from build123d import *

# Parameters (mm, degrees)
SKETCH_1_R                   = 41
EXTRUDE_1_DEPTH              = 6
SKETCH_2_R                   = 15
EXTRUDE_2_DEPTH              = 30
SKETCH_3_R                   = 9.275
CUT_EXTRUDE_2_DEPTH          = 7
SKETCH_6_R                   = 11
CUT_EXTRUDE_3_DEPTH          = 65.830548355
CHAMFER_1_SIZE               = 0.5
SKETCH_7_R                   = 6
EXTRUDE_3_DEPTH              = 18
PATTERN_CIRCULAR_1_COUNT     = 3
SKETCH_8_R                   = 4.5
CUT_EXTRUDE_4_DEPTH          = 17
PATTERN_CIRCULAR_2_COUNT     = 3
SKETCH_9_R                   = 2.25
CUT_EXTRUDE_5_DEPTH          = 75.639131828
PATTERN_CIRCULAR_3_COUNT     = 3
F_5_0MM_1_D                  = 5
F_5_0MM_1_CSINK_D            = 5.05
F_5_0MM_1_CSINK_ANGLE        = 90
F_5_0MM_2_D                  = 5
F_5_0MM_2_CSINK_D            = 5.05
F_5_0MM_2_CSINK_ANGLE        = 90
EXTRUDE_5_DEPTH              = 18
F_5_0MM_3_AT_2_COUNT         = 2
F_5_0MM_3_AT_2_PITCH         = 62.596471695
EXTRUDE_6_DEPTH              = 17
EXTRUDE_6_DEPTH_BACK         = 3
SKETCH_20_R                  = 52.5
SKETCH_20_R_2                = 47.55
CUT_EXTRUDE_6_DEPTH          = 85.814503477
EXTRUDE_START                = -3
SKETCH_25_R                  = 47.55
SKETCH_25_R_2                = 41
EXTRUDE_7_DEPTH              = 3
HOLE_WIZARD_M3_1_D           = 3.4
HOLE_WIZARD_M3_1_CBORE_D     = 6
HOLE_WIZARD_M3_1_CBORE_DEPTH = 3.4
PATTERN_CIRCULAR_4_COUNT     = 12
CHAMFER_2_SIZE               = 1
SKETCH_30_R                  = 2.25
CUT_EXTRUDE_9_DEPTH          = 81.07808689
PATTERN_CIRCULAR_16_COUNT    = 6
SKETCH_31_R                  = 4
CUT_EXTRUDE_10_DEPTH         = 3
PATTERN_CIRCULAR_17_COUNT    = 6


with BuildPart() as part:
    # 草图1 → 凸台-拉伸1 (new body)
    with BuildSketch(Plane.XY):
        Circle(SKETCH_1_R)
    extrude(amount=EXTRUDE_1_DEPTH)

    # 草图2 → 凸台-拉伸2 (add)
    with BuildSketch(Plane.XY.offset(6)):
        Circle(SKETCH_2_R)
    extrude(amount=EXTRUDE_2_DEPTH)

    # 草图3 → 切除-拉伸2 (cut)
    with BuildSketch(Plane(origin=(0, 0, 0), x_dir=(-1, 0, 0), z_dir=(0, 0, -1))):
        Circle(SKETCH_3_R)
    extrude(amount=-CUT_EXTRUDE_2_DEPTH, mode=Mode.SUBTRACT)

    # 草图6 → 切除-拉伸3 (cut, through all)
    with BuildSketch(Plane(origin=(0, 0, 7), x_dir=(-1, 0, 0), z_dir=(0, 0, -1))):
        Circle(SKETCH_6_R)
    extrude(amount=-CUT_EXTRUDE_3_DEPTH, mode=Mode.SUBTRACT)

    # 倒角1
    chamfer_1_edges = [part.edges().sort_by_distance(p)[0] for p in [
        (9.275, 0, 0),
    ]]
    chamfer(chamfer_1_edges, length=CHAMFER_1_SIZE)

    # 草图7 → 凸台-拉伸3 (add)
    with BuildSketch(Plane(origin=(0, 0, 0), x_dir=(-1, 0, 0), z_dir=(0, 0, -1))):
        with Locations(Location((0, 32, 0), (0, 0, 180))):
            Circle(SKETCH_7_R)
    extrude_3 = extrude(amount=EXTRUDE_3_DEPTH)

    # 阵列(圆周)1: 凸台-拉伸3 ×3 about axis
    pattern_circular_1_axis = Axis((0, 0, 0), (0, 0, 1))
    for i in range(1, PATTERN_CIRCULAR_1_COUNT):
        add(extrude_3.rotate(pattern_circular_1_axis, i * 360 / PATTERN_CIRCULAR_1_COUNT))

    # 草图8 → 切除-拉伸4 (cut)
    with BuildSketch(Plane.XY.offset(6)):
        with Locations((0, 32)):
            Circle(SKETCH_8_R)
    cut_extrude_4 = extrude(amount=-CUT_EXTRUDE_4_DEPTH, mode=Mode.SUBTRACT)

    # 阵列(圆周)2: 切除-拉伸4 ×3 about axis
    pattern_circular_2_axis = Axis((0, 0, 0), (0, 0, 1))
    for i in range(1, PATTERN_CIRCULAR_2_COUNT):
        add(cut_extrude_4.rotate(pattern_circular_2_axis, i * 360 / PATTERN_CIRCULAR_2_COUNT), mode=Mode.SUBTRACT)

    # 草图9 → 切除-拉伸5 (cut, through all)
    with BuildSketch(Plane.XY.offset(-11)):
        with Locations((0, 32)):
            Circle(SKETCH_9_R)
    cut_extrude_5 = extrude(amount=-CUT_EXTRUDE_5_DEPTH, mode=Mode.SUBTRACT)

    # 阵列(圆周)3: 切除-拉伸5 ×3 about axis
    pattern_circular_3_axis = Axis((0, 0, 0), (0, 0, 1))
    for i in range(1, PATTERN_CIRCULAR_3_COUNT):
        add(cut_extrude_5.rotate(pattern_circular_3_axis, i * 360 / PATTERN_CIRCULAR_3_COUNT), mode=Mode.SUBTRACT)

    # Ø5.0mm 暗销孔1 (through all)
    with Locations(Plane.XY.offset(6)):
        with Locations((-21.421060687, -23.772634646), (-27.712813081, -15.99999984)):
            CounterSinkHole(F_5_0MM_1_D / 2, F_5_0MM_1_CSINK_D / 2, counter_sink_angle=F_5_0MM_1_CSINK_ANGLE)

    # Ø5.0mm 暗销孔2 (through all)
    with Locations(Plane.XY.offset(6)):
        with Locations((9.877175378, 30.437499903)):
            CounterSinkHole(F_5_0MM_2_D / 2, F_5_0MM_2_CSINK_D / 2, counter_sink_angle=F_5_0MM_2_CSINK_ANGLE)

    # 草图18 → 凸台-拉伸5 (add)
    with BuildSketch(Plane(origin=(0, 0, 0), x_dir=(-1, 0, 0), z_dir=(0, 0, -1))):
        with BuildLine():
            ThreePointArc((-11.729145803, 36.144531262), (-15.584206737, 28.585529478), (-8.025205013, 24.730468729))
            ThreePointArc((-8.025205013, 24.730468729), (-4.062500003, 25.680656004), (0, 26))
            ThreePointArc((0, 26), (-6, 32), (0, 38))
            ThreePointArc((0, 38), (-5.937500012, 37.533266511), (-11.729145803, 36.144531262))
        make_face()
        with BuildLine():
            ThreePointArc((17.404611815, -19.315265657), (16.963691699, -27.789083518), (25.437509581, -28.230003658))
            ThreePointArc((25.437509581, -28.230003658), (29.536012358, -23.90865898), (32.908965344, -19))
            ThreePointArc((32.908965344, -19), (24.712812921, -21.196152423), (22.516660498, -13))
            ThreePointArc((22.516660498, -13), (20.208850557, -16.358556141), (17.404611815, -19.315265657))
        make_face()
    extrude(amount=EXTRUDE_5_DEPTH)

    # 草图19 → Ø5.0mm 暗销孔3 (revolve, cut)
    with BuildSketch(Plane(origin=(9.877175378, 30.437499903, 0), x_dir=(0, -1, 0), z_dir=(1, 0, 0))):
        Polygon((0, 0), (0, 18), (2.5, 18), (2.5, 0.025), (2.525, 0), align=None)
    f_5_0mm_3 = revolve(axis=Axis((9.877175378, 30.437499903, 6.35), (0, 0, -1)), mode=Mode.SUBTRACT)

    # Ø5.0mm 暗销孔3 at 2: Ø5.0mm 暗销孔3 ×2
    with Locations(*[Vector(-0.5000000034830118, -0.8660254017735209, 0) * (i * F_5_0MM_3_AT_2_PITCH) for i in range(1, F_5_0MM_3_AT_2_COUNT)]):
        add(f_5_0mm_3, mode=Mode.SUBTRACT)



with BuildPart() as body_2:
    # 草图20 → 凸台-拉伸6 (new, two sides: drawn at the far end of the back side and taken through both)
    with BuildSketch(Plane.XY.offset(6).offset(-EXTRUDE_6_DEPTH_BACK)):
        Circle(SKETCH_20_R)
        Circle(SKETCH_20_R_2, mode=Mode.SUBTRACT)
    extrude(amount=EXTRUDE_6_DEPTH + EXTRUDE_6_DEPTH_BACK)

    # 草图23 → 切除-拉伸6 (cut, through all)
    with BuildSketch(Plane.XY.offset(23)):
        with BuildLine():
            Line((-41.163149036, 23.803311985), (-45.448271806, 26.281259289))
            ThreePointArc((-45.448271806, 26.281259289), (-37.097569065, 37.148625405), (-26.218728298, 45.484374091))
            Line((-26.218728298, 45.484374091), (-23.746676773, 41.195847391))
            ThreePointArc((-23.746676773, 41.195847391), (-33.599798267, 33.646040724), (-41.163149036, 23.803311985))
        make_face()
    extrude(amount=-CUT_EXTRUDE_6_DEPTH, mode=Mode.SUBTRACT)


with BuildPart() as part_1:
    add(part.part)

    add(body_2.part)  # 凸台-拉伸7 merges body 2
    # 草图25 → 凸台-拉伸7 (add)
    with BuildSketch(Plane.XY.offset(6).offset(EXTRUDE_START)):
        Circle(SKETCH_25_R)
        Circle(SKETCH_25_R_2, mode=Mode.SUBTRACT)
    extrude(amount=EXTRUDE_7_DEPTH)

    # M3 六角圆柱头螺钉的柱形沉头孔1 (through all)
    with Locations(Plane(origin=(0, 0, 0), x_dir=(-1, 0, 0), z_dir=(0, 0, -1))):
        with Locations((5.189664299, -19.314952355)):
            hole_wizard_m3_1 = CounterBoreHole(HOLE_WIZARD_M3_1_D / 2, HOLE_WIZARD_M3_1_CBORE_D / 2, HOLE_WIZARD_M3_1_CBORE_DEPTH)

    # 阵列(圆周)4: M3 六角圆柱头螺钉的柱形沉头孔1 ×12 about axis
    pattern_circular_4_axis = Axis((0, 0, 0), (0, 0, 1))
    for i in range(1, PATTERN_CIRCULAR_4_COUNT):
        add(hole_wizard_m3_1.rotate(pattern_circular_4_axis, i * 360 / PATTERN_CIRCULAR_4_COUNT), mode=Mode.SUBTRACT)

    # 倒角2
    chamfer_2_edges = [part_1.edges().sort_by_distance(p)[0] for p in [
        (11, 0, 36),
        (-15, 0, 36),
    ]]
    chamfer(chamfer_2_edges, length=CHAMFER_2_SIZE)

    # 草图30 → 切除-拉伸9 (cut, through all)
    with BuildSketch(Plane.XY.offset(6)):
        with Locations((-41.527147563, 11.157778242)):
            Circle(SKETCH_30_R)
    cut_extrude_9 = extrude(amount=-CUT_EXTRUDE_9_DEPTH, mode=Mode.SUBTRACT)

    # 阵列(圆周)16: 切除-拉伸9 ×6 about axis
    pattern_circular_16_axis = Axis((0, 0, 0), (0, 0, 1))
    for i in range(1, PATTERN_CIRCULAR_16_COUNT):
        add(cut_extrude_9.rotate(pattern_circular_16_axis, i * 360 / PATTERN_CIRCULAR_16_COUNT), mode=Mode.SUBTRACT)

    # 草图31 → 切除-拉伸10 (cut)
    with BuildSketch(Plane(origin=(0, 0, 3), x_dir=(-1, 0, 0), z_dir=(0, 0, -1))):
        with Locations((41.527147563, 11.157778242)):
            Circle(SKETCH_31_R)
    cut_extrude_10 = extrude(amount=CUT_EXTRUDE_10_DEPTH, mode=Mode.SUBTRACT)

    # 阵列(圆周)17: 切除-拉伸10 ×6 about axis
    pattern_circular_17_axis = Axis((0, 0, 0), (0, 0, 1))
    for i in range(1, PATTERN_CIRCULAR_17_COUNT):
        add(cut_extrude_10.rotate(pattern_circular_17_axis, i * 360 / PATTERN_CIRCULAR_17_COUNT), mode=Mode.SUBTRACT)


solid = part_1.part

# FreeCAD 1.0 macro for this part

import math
import FreeCAD as App
import Part
import Sketcher

V = App.Vector
Q = App.Units.Quantity


def edges_at(feature, points):
    """Names of the edges that pass closest to the given points."""
    edges = feature.Shape.Edges
    near = lambda p: min(range(len(edges)), key=lambda i: edges[i].distToShape(Part.Vertex(*p))[0])
    return sorted({f"Edge{near(p) + 1}" for p in points})

doc = App.newDocument("Part")
body = doc.addObject("PartDesign::Body", "Body")

sketch1 = body.newObject("Sketcher::SketchObject", "Sketch")
sketch1.AttachmentSupport = (doc.getObject("XY_Plane"), [""])
sketch1.MapMode = "FlatFace"
sketch1.addGeometry(Part.Circle(V(0, 0, 0), V(0, 0, 1), 41), False)
sketch1.addConstraint([
    Sketcher.Constraint("Coincident", 0, 3, -1, 1),
    Sketcher.Constraint("Diameter", 0, 82.0),
])
pad1 = body.newObject("PartDesign::Pad", "Pad")
pad1.Profile = sketch1
pad1.Length = 6

sketch2 = body.newObject("Sketcher::SketchObject", "Sketch001")
sketch2.AttachmentSupport = (doc.getObject("XY_Plane"), [""])
sketch2.MapMode = "FlatFace"
sketch2.AttachmentOffset = App.Placement(V(0, 0, 6), App.Rotation())
sketch2.addGeometry(Part.Circle(V(0, 0, 0), V(0, 0, 1), 15), False)
sketch2.addConstraint([
    Sketcher.Constraint("Coincident", 0, 3, -1, 1),
    Sketcher.Constraint("Diameter", 0, 30.0),
])
pad2 = body.newObject("PartDesign::Pad", "Pad001")
pad2.Profile = sketch2
pad2.Length = 30

sketch3 = body.newObject("Sketcher::SketchObject", "Sketch002")
sketch3.AttachmentSupport = (doc.getObject("XY_Plane"), [""])
sketch3.MapMode = "FlatFace"
sketch3.addGeometry(Part.Circle(V(0, 0, 0), V(0, 0, 1), 9.275), False)
sketch3.addConstraint([
    Sketcher.Constraint("Coincident", 0, 3, -1, 1),
    Sketcher.Constraint("Diameter", 0, 18.55),
])
pocket1 = body.newObject("PartDesign::Pocket", "Pocket")
pocket1.Profile = sketch3
pocket1.Length = 7
pocket1.Reversed = True

sketch4 = body.newObject("Sketcher::SketchObject", "Sketch003")
sketch4.AttachmentSupport = (doc.getObject("XY_Plane"), [""])
sketch4.MapMode = "FlatFace"
sketch4.AttachmentOffset = App.Placement(V(0, 0, 7), App.Rotation())
sketch4.addGeometry(Part.Circle(V(0, 0, 0), V(0, 0, 1), 11), False)
sketch4.addConstraint([
    Sketcher.Constraint("Coincident", 0, 3, -1, 1),
    Sketcher.Constraint("Diameter", 0, 22.0),
])
pocket2 = body.newObject("PartDesign::Pocket", "Pocket001")
pocket2.Profile = sketch4
pocket2.Type = "ThroughAll"
pocket2.Reversed = True
doc.recompute()

chamfer = body.newObject("PartDesign::Chamfer", "Chamfer")
chamfer.Base = (pocket2, edges_at(pocket2, [(9.275, 0, 0)]))
chamfer.Size = 0.5

sketch5 = body.newObject("Sketcher::SketchObject", "Sketch004")
sketch5.AttachmentSupport = (doc.getObject("XY_Plane"), [""])
sketch5.MapMode = "FlatFace"
sketch5.addGeometry(Part.Circle(V(0, 32, 0), V(0, 0, 1), 6), False)
sketch5.addConstraint([
    Sketcher.Constraint("PointOnObject", 0, 3, -2),
    Sketcher.Constraint("Diameter", 0, 12.0),
    Sketcher.Constraint("DistanceY", -1, 1, 0, 3, 32.0),
])
pad3 = body.newObject("PartDesign::Pad", "Pad002")
pad3.Profile = sketch5
pad3.Length = 18
pad3.Reversed = True
doc.recompute()

polarpattern = body.newObject("PartDesign::PolarPattern", "PolarPattern")
polarpattern.Originals = [pad3]
polarpattern.Axis = (doc.getObject("Z_Axis"), [""])
polarpattern.Angle = 360
polarpattern.Occurrences = 3
body.Tip = polarpattern

sketch6 = body.newObject("Sketcher::SketchObject", "Sketch005")
sketch6.AttachmentSupport = (doc.getObject("XY_Plane"), [""])
sketch6.MapMode = "FlatFace"
sketch6.AttachmentOffset = App.Placement(V(0, 0, 6), App.Rotation())
sketch6.addGeometry(Part.Circle(V(0, 32, 0), V(0, 0, 1), 4.5), False)
sketch6.addConstraint([
    Sketcher.Constraint("PointOnObject", 0, 3, -2),
    Sketcher.Constraint("Diameter", 0, 9.0),
    Sketcher.Constraint("DistanceY", -1, 1, 0, 3, 32.0),
])
pocket3 = body.newObject("PartDesign::Pocket", "Pocket002")
pocket3.Profile = sketch6
pocket3.Length = 17
doc.recompute()

polarpattern2 = body.newObject("PartDesign::PolarPattern", "PolarPattern001")
polarpattern2.Originals = [pocket3]
polarpattern2.Axis = (doc.getObject("Z_Axis"), [""])
polarpattern2.Angle = 360
polarpattern2.Occurrences = 3
body.Tip = polarpattern2

sketch7 = body.newObject("Sketcher::SketchObject", "Sketch006")
sketch7.AttachmentSupport = (doc.getObject("XY_Plane"), [""])
sketch7.MapMode = "FlatFace"
sketch7.AttachmentOffset = App.Placement(V(0, 0, -11), App.Rotation())
sketch7.addGeometry(Part.Circle(V(0, 32, 0), V(0, 0, 1), 2.25), False)
sketch7.addConstraint([
    Sketcher.Constraint("PointOnObject", 0, 3, -2),
    Sketcher.Constraint("Diameter", 0, 4.5),
    Sketcher.Constraint("DistanceY", -1, 1, 0, 3, 32.0),
])
pocket4 = body.newObject("PartDesign::Pocket", "Pocket003")
pocket4.Profile = sketch7
pocket4.Type = "ThroughAll"
doc.recompute()

polarpattern3 = body.newObject("PartDesign::PolarPattern", "PolarPattern002")
polarpattern3.Originals = [pocket4]
polarpattern3.Axis = (doc.getObject("Z_Axis"), [""])
polarpattern3.Angle = 360
polarpattern3.Occurrences = 3
body.Tip = polarpattern3

sketch8 = body.newObject("Sketcher::SketchObject", "Sketch007")
sketch8.AttachmentSupport = (doc.getObject("XY_Plane"), [""])
sketch8.MapMode = "FlatFace"
sketch8.AttachmentOffset = App.Placement(V(0, 0, 6), App.Rotation())
sketch8.addGeometry([
    Part.Circle(V(-21.421061, -23.772635, 0), V(0, 0, 1), 2.5),
    Part.Circle(V(-27.712813, -16, 0), V(0, 0, 1), 2.5),
], False)
sketch8.addConstraint([
    Sketcher.Constraint("Equal", 0, 1),
    Sketcher.Constraint("Diameter", 0, 5.0),
    Sketcher.Constraint("DistanceY", 1, 3, -1, 1, 16.0),
    Sketcher.Constraint("DistanceX", 0, 3, -1, 1, 21.421061),
    Sketcher.Constraint("DistanceY", 0, 3, -1, 1, 23.772635),
    Sketcher.Constraint("DistanceX", 1, 3, -1, 1, 27.712813),
])
doc.recompute()
hole = body.newObject("PartDesign::Hole", "Hole")
hole.Profile = sketch8
hole.ThreadType = "None"
hole.Diameter = 5
hole.DepthType = "ThroughAll"
hole.HoleCutType = "Countersink"
hole.HoleCutDiameter = 5.05
hole.HoleCutCountersinkAngle = 90

sketch9 = body.newObject("Sketcher::SketchObject", "Sketch008")
sketch9.AttachmentSupport = (doc.getObject("XY_Plane"), [""])
sketch9.MapMode = "FlatFace"
sketch9.AttachmentOffset = App.Placement(V(0, 0, 6), App.Rotation())
sketch9.addGeometry(Part.Circle(V(9.877175, 30.4375, 0), V(0, 0, 1), 2.5), False)
sketch9.addConstraint([
    Sketcher.Constraint("Diameter", 0, 5.0),
    Sketcher.Constraint("DistanceY", -1, 1, 0, 3, 30.4375),
    Sketcher.Constraint("DistanceX", -1, 1, 0, 3, 9.877175),
])
doc.recompute()
hole2 = body.newObject("PartDesign::Hole", "Hole001")
hole2.Profile = sketch9
hole2.ThreadType = "None"
hole2.Diameter = 5
hole2.DepthType = "ThroughAll"
hole2.HoleCutType = "Countersink"
hole2.HoleCutDiameter = 5.05
hole2.HoleCutCountersinkAngle = 90

sketch10 = body.newObject("Sketcher::SketchObject", "Sketch009")
sketch10.AttachmentSupport = (doc.getObject("XY_Plane"), [""])
sketch10.MapMode = "FlatFace"
sketch10.addGeometry([
    Part.ArcOfCircle(Part.Circle(V(9.877176, 30.4375, 0), V(0, 0, 1), 6), math.radians(-107.9786), math.radians(72.021402)),
    Part.ArcOfCircle(Part.Circle(V(0, -0.000001, 0), V(0, 0, 1), 26.000001), math.radians(72.021401), math.radians(90)),
    Part.ArcOfCircle(Part.Circle(V(0, 32, 0), V(0, 0, 1), 6), math.radians(-90), math.radians(90)),
    Part.ArcOfCircle(Part.Circle(V(0, 0.000001, 0), V(0, 0, 1), 37.999999), math.radians(72.021401), math.radians(90)),
    Part.ArcOfCircle(Part.Circle(V(-21.421061, -23.772635, 0), V(0, 0, 1), 6), math.radians(-132.021402), math.radians(47.978598)),
    Part.ArcOfCircle(Part.Circle(V(0, 0, 0), V(0, 0, 1), 38), math.radians(-150), math.radians(-132.021402)),
    Part.ArcOfCircle(Part.Circle(V(-27.712813, -16, 0), V(0, 0, 1), 6), math.radians(-150), math.radians(30)),
    Part.ArcOfCircle(Part.Circle(V(0, 0, 0), V(0, 0, 1), 26), math.radians(-150), math.radians(-132.021402)),
], False)
sketch10.addConstraint([
    Sketcher.Constraint("Tangent", 0, 1, 1, 1),
    Sketcher.Constraint("Tangent", 1, 2, 2, 1),
    Sketcher.Constraint("Tangent", 2, 2, 3, 2),
    Sketcher.Constraint("Tangent", 3, 1, 0, 2),
    Sketcher.Constraint("Tangent", 4, 1, 5, 2),
    Sketcher.Constraint("Tangent", 5, 1, 6, 1),
    Sketcher.Constraint("Tangent", 6, 2, 7, 1),
    Sketcher.Constraint("Tangent", 7, 2, 4, 2),
    Sketcher.Constraint("Coincident", 1, 3, -1, 1),
    Sketcher.Constraint("Coincident", 3, 3, -1, 1),
    Sketcher.Constraint("Coincident", 5, 3, -1, 1),
    Sketcher.Constraint("Coincident", 7, 3, -1, 1),
    Sketcher.Constraint("Equal", 2, 4),
    Sketcher.Constraint("Equal", 3, 5),
    Sketcher.Constraint("PointOnObject", 2, 3, -2),
    Sketcher.Constraint("Radius", 0, 6.0),
    Sketcher.Constraint("Radius", 1, 26.000001),
    Sketcher.Constraint("DistanceY", 6, 3, -1, 1, 16.0),
    Sketcher.Constraint("DistanceY", -1, 1, 0, 3, 30.4375),
    Sketcher.Constraint("DistanceX", 6, 2, 4, 3, 1.0956),
])
pad4 = body.newObject("PartDesign::Pad", "Pad003")
pad4.Profile = sketch10
pad4.Length = 18
pad4.Reversed = True

sketch11 = body.newObject("Sketcher::SketchObject", "Sketch010")
sketch11.AttachmentSupport = (doc.getObject("YZ_Plane"), [""])
sketch11.MapMode = "FlatFace"
sketch11.AttachmentOffset = App.Placement(V(0, 0, 9.877175), App.Rotation())
sketch11.addGeometry([
    Part.LineSegment(V(30.4375, -18, 0), V(30.4375, 0, 0)),
    Part.LineSegment(V(30.4375, 0, 0), V(27.9125, 0, 0)),
    Part.LineSegment(V(27.9125, 0, 0), V(27.9375, -0.025, 0)),
    Part.LineSegment(V(27.9375, -0.025, 0), V(27.9375, -18, 0)),
    Part.LineSegment(V(27.9375, -18, 0), V(30.4375, -18, 0)),
], False)
sketch11.addGeometry(Part.LineSegment(V(30.4375, 0, 0), V(30.4375, -18, 0)), True)
sketch11.addConstraint([
    Sketcher.Constraint("Coincident", 0, 2, 1, 1),
    Sketcher.Constraint("Coincident", 1, 2, 2, 1),
    Sketcher.Constraint("Coincident", 2, 2, 3, 1),
    Sketcher.Constraint("Coincident", 3, 2, 4, 1),
    Sketcher.Constraint("Coincident", 4, 2, 0, 1),
    Sketcher.Constraint("Vertical", 0),
    Sketcher.Constraint("Horizontal", 1),
    Sketcher.Constraint("Vertical", 3),
    Sketcher.Constraint("Horizontal", 4),
    Sketcher.Constraint("Vertical", 5),
    Sketcher.Constraint("Coincident", 5, 1, 0, 2),
    Sketcher.Constraint("PointOnObject", 0, 2, -1),
    Sketcher.Constraint("Horizontal", 3, 2, 5, 2),
    Sketcher.Constraint("DistanceY", 0, 1, 0, 2, 18.0),
    Sketcher.Constraint("Angle", 2, Q("-45 deg")),
    Sketcher.Constraint("DistanceX", 4, 1, 4, 2, 2.5),
    Sketcher.Constraint("DistanceX", 1, 2, 1, 1, 2.525),
    Sketcher.Constraint("DistanceX", -1, 1, 0, 2, 30.4375),
])
groove = body.newObject("PartDesign::Groove", "Groove")
groove.Profile = sketch11
groove.ReferenceAxis = (sketch11, ["Axis0"])
groove.Angle = 360
doc.recompute()

datumline = body.newObject("PartDesign::Line", "DatumLine")
datumline.Placement = App.Placement(V(0, 0, 0), App.Rotation(V(0, 0, 1), V(-0.500000003, -0.866025402, 0)))
linearpattern = body.newObject("PartDesign::LinearPattern", "LinearPattern")
linearpattern.Originals = [groove]
linearpattern.Direction = (datumline, [""])
linearpattern.Mode = "offset"
linearpattern.Offset = 62.596472
linearpattern.Occurrences = 2
body.Tip = linearpattern
body2 = doc.addObject("PartDesign::Body", "Body001")

sketch12 = body2.newObject("Sketcher::SketchObject", "Sketch011")
sketch12.AttachmentSupport = (doc.getObject("XY_Plane001"), [""])
sketch12.MapMode = "FlatFace"
sketch12.AttachmentOffset = App.Placement(V(0, 0, 6), App.Rotation())
sketch12.addGeometry([
    Part.Circle(V(0, 0, 0), V(0, 0, 1), 52.5),
    Part.Circle(V(0, 0, 0), V(0, 0, 1), 47.55),
], False)
sketch12.addConstraint([
    Sketcher.Constraint("Coincident", 0, 3, -1, 1),
    Sketcher.Constraint("Coincident", 1, 3, -1, 1),
    Sketcher.Constraint("Diameter", 0, 105.0),
    Sketcher.Constraint("Diameter", 1, 95.1),
])
pad5 = body2.newObject("PartDesign::Pad", "Pad004")
pad5.Profile = sketch12
pad5.Type = "TwoLengths"
pad5.Length = 17
pad5.Length2 = 3

sketch13 = body2.newObject("Sketcher::SketchObject", "Sketch012")
sketch13.AttachmentSupport = (doc.getObject("XY_Plane001"), [""])
sketch13.MapMode = "FlatFace"
sketch13.AttachmentOffset = App.Placement(V(0, 0, 23), App.Rotation())
sketch13.addGeometry([
    Part.LineSegment(V(-45.448272, 26.281259, 0), V(-41.163149, 23.803312, 0)),
    Part.ArcOfCircle(Part.Circle(V(0, 0, 0), V(0, 0, 1), 47.55), math.radians(119.9606), math.radians(149.9606)),
    Part.LineSegment(V(-23.746677, 41.195847, 0), V(-26.218728, 45.484374, 0)),
    Part.ArcOfCircle(Part.Circle(V(0, 0, 0), V(0, 0, 1), 52.5), math.radians(119.9606), math.radians(149.9606)),
], False)
sketch13.addConstraint([
    Sketcher.Constraint("Coincident", 0, 2, 1, 2),
    Sketcher.Constraint("Coincident", 1, 1, 2, 1),
    Sketcher.Constraint("Coincident", 2, 2, 3, 1),
    Sketcher.Constraint("Coincident", 3, 2, 0, 1),
    Sketcher.Constraint("Coincident", 1, 3, -1, 1),
    Sketcher.Constraint("Coincident", 3, 3, -1, 1),
    Sketcher.Constraint("Radius", 3, 52.5),
    Sketcher.Constraint("Radius", 1, 47.55),
    Sketcher.Constraint("DistanceX", 0, 2, -1, 1, 41.163149),
    Sketcher.Constraint("DistanceX", 2, 2, -1, 1, 26.218728),
    Sketcher.Constraint("DistanceX", 3, 2, -1, 1, 45.448272),
    Sketcher.Constraint("DistanceX", 2, 2, 1, 1, 2.472052),
])
pocket5 = body2.newObject("PartDesign::Pocket", "Pocket004")
pocket5.Profile = sketch13
pocket5.Type = "ThroughAll"
body.AllowCompound = True
doc.recompute()

boolean = body.newObject("PartDesign::Boolean", "Boolean")
boolean.Type = "Fuse"
boolean.addObjects([body2])

sketch14 = body.newObject("Sketcher::SketchObject", "Sketch013")
sketch14.AttachmentSupport = (doc.getObject("XY_Plane"), [""])
sketch14.MapMode = "FlatFace"
sketch14.AttachmentOffset = App.Placement(V(0, 0, 3), App.Rotation())
sketch14.addGeometry([
    Part.Circle(V(0, 0, 0), V(0, 0, 1), 47.55),
    Part.Circle(V(0, 0, 0), V(0, 0, 1), 41),
], False)
sketch14.addConstraint([
    Sketcher.Constraint("Coincident", 0, 3, -1, 1),
    Sketcher.Constraint("Coincident", 1, 3, -1, 1),
    Sketcher.Constraint("Diameter", 1, 82.0),
    Sketcher.Constraint("Diameter", 0, 95.1),
])
pad6 = body.newObject("PartDesign::Pad", "Pad005")
pad6.Profile = sketch14
pad6.Length = 3

sketch15 = body.newObject("Sketcher::SketchObject", "Sketch014")
sketch15.AttachmentSupport = (doc.getObject("XY_Plane"), [""])
sketch15.MapMode = "FlatFace"
sketch15.addGeometry(Part.Circle(V(-5.189664, -19.314952, 0), V(0, 0, 1), 1.7), False)
sketch15.addConstraint([
    Sketcher.Constraint("Diameter", 0, 3.4),
    Sketcher.Constraint("DistanceX", 0, 3, -1, 1, 5.189664),
    Sketcher.Constraint("DistanceY", 0, 3, -1, 1, 19.314952),
])
doc.recompute()
hole3 = body.newObject("PartDesign::Hole", "Hole002")
hole3.Profile = sketch15
hole3.ThreadType = "None"
hole3.Diameter = 3.4
hole3.DepthType = "ThroughAll"
hole3.HoleCutType = "Counterbore"
hole3.HoleCutDiameter = 6
hole3.HoleCutDepth = 3.4
hole3.Reversed = True
doc.recompute()

polarpattern4 = body.newObject("PartDesign::PolarPattern", "PolarPattern003")
polarpattern4.Originals = [hole3]
polarpattern4.Axis = (doc.getObject("Z_Axis"), [""])
polarpattern4.Angle = 360
polarpattern4.Occurrences = 12
body.Tip = polarpattern4
doc.recompute()

chamfer2 = body.newObject("PartDesign::Chamfer", "Chamfer001")
chamfer2.Base = (polarpattern4, edges_at(polarpattern4, [(11, 0, 36), (-15, 0, 36)]))
chamfer2.Size = 1

sketch16 = body.newObject("Sketcher::SketchObject", "Sketch015")
sketch16.AttachmentSupport = (doc.getObject("XY_Plane"), [""])
sketch16.MapMode = "FlatFace"
sketch16.AttachmentOffset = App.Placement(V(0, 0, 6), App.Rotation())
sketch16.addGeometry(Part.Circle(V(-41.527148, 11.157778, 0), V(0, 0, 1), 2.25), False)
sketch16.addConstraint([
    Sketcher.Constraint("Diameter", 0, 4.5),
    Sketcher.Constraint("DistanceY", -1, 1, 0, 3, 11.157778),
    Sketcher.Constraint("DistanceX", 0, 3, -1, 1, 41.527148),
])
pocket6 = body.newObject("PartDesign::Pocket", "Pocket005")
pocket6.Profile = sketch16
pocket6.Type = "ThroughAll"
doc.recompute()

polarpattern5 = body.newObject("PartDesign::PolarPattern", "PolarPattern004")
polarpattern5.Originals = [pocket6]
polarpattern5.Axis = (doc.getObject("Z_Axis"), [""])
polarpattern5.Angle = 360
polarpattern5.Occurrences = 6
body.Tip = polarpattern5

sketch17 = body.newObject("Sketcher::SketchObject", "Sketch016")
sketch17.AttachmentSupport = (doc.getObject("XY_Plane"), [""])
sketch17.MapMode = "FlatFace"
sketch17.AttachmentOffset = App.Placement(V(0, 0, 3), App.Rotation())
sketch17.addGeometry(Part.Circle(V(-41.527148, 11.157778, 0), V(0, 0, 1), 4), False)
sketch17.addConstraint([
    Sketcher.Constraint("Diameter", 0, 8.0),
    Sketcher.Constraint("DistanceY", -1, 1, 0, 3, 11.157778),
    Sketcher.Constraint("DistanceX", 0, 3, -1, 1, 41.527148),
])
pocket7 = body.newObject("PartDesign::Pocket", "Pocket006")
pocket7.Profile = sketch17
pocket7.Length = 3
doc.recompute()

polarpattern6 = body.newObject("PartDesign::PolarPattern", "PolarPattern005")
polarpattern6.Originals = [pocket7]
polarpattern6.Axis = (doc.getObject("Z_Axis"), [""])
polarpattern6.Angle = 360
polarpattern6.Occurrences = 6
body.Tip = polarpattern6

doc.recompute()
